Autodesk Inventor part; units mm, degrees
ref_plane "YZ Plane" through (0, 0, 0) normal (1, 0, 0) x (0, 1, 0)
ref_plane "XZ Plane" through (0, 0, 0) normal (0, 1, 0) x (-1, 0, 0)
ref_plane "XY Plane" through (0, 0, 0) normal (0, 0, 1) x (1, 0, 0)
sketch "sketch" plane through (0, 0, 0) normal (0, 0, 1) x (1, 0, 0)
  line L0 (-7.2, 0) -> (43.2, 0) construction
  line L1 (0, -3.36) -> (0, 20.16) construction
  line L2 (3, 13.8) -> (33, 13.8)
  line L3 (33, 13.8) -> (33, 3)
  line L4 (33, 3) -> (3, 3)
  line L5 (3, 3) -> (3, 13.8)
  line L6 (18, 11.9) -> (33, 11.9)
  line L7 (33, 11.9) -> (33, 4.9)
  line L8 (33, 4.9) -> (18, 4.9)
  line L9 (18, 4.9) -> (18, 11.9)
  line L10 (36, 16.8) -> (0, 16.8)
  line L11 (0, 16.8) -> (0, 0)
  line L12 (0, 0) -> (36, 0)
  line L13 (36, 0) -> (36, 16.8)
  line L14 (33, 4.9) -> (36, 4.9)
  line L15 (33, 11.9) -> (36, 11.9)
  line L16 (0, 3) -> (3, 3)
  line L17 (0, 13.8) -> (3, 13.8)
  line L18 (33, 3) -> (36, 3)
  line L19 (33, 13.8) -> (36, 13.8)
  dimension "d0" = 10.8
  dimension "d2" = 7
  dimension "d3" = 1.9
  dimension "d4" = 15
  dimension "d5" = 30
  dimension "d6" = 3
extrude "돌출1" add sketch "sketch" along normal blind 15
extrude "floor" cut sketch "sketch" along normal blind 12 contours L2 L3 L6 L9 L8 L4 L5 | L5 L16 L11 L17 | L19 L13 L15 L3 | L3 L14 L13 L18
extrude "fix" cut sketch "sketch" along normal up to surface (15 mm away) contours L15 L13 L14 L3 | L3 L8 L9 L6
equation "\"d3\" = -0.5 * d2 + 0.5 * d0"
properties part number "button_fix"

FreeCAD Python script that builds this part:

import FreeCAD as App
import Part
import Sketcher
from FreeCAD import Vector
Q = App.Units.Quantity

doc = App.newDocument("Part")
params = doc.addObject("Spreadsheet::Sheet", "Params")
for row, (alias, value) in enumerate([
    ("sketch1_width", "36 mm"),
    ("sketch1_height", "16.8 mm"),
    ("pad1_length", "15 mm"),
    ("sketch2_height", "7 mm"),
    ("sketch2_height2", "10.8 mm"),
    ("sketch2_width", "36 mm"),
    ("sketch2_width2", "18 mm"),
    ("pocket1_length", "12 mm"),
    ("sketch3_height", "7 mm"),
    ("sketch3_width", "18 mm"),
    ("pocket2_length", "15 mm"),
], start=1):
    params.set(f"A{row}", alias)
    params.set(f"B{row}", "=" + value)
    params.setAlias(f"B{row}", alias)

body = doc.addObject("PartDesign::Body", "Body")

# Sketch on XY plane
sketch1 = doc.addObject("Sketcher::SketchObject", "Sketch")
body.addObject(sketch1)
sketch1.AttachmentSupport = (doc.XY_Plane, [""])
sketch1.MapMode = "FlatFace"
sketch1.addGeometry([
    Part.LineSegment(Vector(0, 17, 0), Vector(0, 0, 0)),
    Part.LineSegment(Vector(0, 0, 0), Vector(36, 0, 0)),
    Part.LineSegment(Vector(36, 0, 0), Vector(36, 17, 0)),
    Part.LineSegment(Vector(36, 17, 0), Vector(0, 17, 0)),
], False)
sketch1.addConstraint([
    Sketcher.Constraint("Coincident", 0, 2, 1, 1),
    Sketcher.Constraint("Coincident", 1, 2, 2, 1),
    Sketcher.Constraint("Coincident", 2, 2, 3, 1),
    Sketcher.Constraint("Coincident", 3, 2, 0, 1),
    Sketcher.Constraint("Vertical", 0),
    Sketcher.Constraint("Horizontal", 1),
    Sketcher.Constraint("Vertical", 2),
    Sketcher.Constraint("Horizontal", 3),
    Sketcher.Constraint("Coincident", 0, 2, -1, 1),
    Sketcher.Constraint("DistanceX", 1, 1, 1, 2, Q("36 mm")),
    Sketcher.Constraint("DistanceY", 0, 2, 0, 1, Q("16.8 mm")),
])
sketch1.setExpression("Constraints[9]", "Params.sketch1_width")
sketch1.setExpression("Constraints[10]", "Params.sketch1_height")
pad1 = doc.addObject("PartDesign::Pad", "Pad")
body.addObject(pad1)
pad1.Profile = sketch1
pad1.setExpression("Length", "Params.pad1_length")

# Sketch on XY plane
sketch2 = doc.addObject("Sketcher::SketchObject", "Sketch001")
body.addObject(sketch2)
sketch2.AttachmentSupport = (doc.XY_Plane, [""])
sketch2.MapMode = "FlatFace"
sketch2.addGeometry([
    Part.LineSegment(Vector(0, 13.8, 0), Vector(0, 3, 0)),  # 0
    Part.LineSegment(Vector(0, 3, 0), Vector(36, 3, 0)),  # 1
    Part.LineSegment(Vector(36, 3, 0), Vector(36, 4.9, 0)),  # 2
    Part.LineSegment(Vector(36, 4.9, 0), Vector(18, 4.9, 0)),  # 3
    Part.LineSegment(Vector(18, 4.9, 0), Vector(18, 11.9, 0)),  # 4
    Part.LineSegment(Vector(18, 11.9, 0), Vector(36, 11.9, 0)),  # 5
    Part.LineSegment(Vector(36, 11.9, 0), Vector(36, 13.8, 0)),  # 6
    Part.LineSegment(Vector(36, 13.8, 0), Vector(0, 13.8, 0)),  # 7
], False)
sketch2.addConstraint([
    Sketcher.Constraint("Coincident", 0, 2, 1, 1),
    Sketcher.Constraint("Coincident", 1, 2, 2, 1),
    Sketcher.Constraint("Coincident", 2, 2, 3, 1),
    Sketcher.Constraint("Coincident", 3, 2, 4, 1),
    Sketcher.Constraint("Coincident", 4, 2, 5, 1),
    Sketcher.Constraint("Coincident", 5, 2, 6, 1),
    Sketcher.Constraint("Coincident", 6, 2, 7, 1),
    Sketcher.Constraint("Coincident", 7, 2, 0, 1),
    Sketcher.Constraint("Vertical", 0),
    Sketcher.Constraint("Horizontal", 1),
    Sketcher.Constraint("Vertical", 2),
    Sketcher.Constraint("Horizontal", 3),
    Sketcher.Constraint("Vertical", 4),
    Sketcher.Constraint("Horizontal", 5),
    Sketcher.Constraint("Vertical", 6),
    Sketcher.Constraint("Horizontal", 7),
    Sketcher.Constraint("PointOnObject", 0, 2, -2),
    Sketcher.Constraint("Vertical", 2, 2, 5, 2),
    Sketcher.Constraint("Equal", 2, 6),
    Sketcher.Constraint("DistanceY", 4, 1, 4, 2, Q("7 mm")),
    Sketcher.Constraint("DistanceY", 0, 2, 0, 1, Q("10.8 mm")),
    Sketcher.Constraint("DistanceY", -1, 1, 0, 2, Q("3 mm")),
    Sketcher.Constraint("DistanceX", 1, 1, 1, 2, Q("36 mm")),
    Sketcher.Constraint("DistanceX", 3, 2, 3, 1, Q("18 mm")),
])
sketch2.setExpression("Constraints[19]", "Params.sketch2_height")
sketch2.setExpression("Constraints[20]", "Params.sketch2_height2")
sketch2.setExpression("Constraints[22]", "Params.sketch2_width")
sketch2.setExpression("Constraints[23]", "Params.sketch2_width2")
pocket1 = doc.addObject("PartDesign::Pocket", "Pocket")
body.addObject(pocket1)
pocket1.Profile = sketch2
pocket1.setExpression("Length", "Params.pocket1_length")
pocket1.Reversed = True

# Sketch on XY plane
sketch3 = doc.addObject("Sketcher::SketchObject", "Sketch002")
body.addObject(sketch3)
sketch3.AttachmentSupport = (doc.XY_Plane, [""])
sketch3.MapMode = "FlatFace"
sketch3.addGeometry([
    Part.LineSegment(Vector(36, 12, 0), Vector(18, 12, 0)),
    Part.LineSegment(Vector(18, 12, 0), Vector(18, 5, 0)),
    Part.LineSegment(Vector(18, 5, 0), Vector(36, 5, 0)),
    Part.LineSegment(Vector(36, 5, 0), Vector(36, 12, 0)),
], False)
sketch3.addConstraint([
    Sketcher.Constraint("Coincident", 0, 2, 1, 1),
    Sketcher.Constraint("Coincident", 1, 2, 2, 1),
    Sketcher.Constraint("Coincident", 2, 2, 3, 1),
    Sketcher.Constraint("Coincident", 3, 2, 0, 1),
    Sketcher.Constraint("Horizontal", 0),
    Sketcher.Constraint("Vertical", 1),
    Sketcher.Constraint("Horizontal", 2),
    Sketcher.Constraint("Vertical", 3),
    Sketcher.Constraint("DistanceY", 1, 2, 1, 1, Q("7 mm")),
    Sketcher.Constraint("DistanceX", 0, 2, 0, 1, Q("18 mm")),
    Sketcher.Constraint("DistanceX", -1, 1, 0, 2, Q("18 mm")),
    Sketcher.Constraint("DistanceY", -1, 1, 0, 2, Q("11.9 mm")),
])
sketch3.setExpression("Constraints[8]", "Params.sketch3_height")
sketch3.setExpression("Constraints[9]", "Params.sketch3_width")
pocket2 = doc.addObject("PartDesign::Pocket", "Pocket001")
body.addObject(pocket2)
pocket2.Profile = sketch3
pocket2.setExpression("Length", "Params.pocket2_length")
pocket2.Reversed = True

doc.recompute()
